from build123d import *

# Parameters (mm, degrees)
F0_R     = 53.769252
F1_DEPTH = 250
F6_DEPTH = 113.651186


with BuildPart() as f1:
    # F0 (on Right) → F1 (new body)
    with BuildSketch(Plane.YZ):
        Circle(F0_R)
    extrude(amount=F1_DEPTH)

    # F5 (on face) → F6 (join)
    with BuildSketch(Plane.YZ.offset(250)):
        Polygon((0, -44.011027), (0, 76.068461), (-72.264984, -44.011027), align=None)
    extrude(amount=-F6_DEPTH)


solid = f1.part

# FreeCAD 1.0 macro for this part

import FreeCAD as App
import Part
import Sketcher
from FreeCAD import Vector
Q = App.Units.Quantity


def add_polygon(sketch, points):
    """Adds a closed chain of lines whose ends are joined by coincident constraints."""
    first, n = sketch.GeometryCount, len(points)
    for a, b in zip(points, points[1:] + points[:1]):
        sketch.addGeometry(Part.LineSegment(App.Vector(*a, 0), App.Vector(*b, 0)), False)
    for i in range(n):
        sketch.addConstraint(Sketcher.Constraint("Coincident", first + i, 2, first + (i + 1) % n, 1))

doc = App.newDocument("Part")
body = doc.addObject("PartDesign::Body", "Body")

sketch1 = doc.addObject("Sketcher::SketchObject", "Sketch")
body.addObject(sketch1)
sketch1.AttachmentSupport = (doc.YZ_Plane, [""])
sketch1.MapMode = "FlatFace"
sketch1.addGeometry(Part.Circle(Vector(0, 0, 0), Vector(0, 0, 1), 54), False)
sketch1.addConstraint([
    Sketcher.Constraint("Coincident", 0, 3, -1, 1),
    Sketcher.Constraint("Diameter", 0, Q("107.538504 mm")),
])
pad1 = doc.addObject("PartDesign::Pad", "Pad")
body.addObject(pad1)
pad1.Profile = sketch1
pad1.Length = 250

sketch2 = doc.addObject("Sketcher::SketchObject", "Sketch001")
body.addObject(sketch2)
sketch2.AttachmentSupport = (doc.YZ_Plane, [""])
sketch2.MapMode = "FlatFace"
sketch2.AttachmentOffset = App.Placement(Vector(0, 0, 250), App.Rotation())
add_polygon(sketch2, [(0, -44), (0, 76), (-72, -44)])
sketch2.addConstraint([
    Sketcher.Constraint("Vertical", 0),
    Sketcher.Constraint("Horizontal", 2),
    Sketcher.Constraint("PointOnObject", 0, 2, -2),
    Sketcher.Constraint("DistanceX", 2, 1, 2, 2, Q("72.264984 mm")),
    Sketcher.Constraint("DistanceY", 0, 1, 0, 2, Q("120.079488 mm")),
    Sketcher.Constraint("DistanceY", -1, 1, 0, 2, Q("76.068461 mm")),
])
pad2 = doc.addObject("PartDesign::Pad", "Pad001")
body.addObject(pad2)
pad2.Profile = sketch2
pad2.Length = 113.651186
pad2.Reversed = True

doc.recompute()
